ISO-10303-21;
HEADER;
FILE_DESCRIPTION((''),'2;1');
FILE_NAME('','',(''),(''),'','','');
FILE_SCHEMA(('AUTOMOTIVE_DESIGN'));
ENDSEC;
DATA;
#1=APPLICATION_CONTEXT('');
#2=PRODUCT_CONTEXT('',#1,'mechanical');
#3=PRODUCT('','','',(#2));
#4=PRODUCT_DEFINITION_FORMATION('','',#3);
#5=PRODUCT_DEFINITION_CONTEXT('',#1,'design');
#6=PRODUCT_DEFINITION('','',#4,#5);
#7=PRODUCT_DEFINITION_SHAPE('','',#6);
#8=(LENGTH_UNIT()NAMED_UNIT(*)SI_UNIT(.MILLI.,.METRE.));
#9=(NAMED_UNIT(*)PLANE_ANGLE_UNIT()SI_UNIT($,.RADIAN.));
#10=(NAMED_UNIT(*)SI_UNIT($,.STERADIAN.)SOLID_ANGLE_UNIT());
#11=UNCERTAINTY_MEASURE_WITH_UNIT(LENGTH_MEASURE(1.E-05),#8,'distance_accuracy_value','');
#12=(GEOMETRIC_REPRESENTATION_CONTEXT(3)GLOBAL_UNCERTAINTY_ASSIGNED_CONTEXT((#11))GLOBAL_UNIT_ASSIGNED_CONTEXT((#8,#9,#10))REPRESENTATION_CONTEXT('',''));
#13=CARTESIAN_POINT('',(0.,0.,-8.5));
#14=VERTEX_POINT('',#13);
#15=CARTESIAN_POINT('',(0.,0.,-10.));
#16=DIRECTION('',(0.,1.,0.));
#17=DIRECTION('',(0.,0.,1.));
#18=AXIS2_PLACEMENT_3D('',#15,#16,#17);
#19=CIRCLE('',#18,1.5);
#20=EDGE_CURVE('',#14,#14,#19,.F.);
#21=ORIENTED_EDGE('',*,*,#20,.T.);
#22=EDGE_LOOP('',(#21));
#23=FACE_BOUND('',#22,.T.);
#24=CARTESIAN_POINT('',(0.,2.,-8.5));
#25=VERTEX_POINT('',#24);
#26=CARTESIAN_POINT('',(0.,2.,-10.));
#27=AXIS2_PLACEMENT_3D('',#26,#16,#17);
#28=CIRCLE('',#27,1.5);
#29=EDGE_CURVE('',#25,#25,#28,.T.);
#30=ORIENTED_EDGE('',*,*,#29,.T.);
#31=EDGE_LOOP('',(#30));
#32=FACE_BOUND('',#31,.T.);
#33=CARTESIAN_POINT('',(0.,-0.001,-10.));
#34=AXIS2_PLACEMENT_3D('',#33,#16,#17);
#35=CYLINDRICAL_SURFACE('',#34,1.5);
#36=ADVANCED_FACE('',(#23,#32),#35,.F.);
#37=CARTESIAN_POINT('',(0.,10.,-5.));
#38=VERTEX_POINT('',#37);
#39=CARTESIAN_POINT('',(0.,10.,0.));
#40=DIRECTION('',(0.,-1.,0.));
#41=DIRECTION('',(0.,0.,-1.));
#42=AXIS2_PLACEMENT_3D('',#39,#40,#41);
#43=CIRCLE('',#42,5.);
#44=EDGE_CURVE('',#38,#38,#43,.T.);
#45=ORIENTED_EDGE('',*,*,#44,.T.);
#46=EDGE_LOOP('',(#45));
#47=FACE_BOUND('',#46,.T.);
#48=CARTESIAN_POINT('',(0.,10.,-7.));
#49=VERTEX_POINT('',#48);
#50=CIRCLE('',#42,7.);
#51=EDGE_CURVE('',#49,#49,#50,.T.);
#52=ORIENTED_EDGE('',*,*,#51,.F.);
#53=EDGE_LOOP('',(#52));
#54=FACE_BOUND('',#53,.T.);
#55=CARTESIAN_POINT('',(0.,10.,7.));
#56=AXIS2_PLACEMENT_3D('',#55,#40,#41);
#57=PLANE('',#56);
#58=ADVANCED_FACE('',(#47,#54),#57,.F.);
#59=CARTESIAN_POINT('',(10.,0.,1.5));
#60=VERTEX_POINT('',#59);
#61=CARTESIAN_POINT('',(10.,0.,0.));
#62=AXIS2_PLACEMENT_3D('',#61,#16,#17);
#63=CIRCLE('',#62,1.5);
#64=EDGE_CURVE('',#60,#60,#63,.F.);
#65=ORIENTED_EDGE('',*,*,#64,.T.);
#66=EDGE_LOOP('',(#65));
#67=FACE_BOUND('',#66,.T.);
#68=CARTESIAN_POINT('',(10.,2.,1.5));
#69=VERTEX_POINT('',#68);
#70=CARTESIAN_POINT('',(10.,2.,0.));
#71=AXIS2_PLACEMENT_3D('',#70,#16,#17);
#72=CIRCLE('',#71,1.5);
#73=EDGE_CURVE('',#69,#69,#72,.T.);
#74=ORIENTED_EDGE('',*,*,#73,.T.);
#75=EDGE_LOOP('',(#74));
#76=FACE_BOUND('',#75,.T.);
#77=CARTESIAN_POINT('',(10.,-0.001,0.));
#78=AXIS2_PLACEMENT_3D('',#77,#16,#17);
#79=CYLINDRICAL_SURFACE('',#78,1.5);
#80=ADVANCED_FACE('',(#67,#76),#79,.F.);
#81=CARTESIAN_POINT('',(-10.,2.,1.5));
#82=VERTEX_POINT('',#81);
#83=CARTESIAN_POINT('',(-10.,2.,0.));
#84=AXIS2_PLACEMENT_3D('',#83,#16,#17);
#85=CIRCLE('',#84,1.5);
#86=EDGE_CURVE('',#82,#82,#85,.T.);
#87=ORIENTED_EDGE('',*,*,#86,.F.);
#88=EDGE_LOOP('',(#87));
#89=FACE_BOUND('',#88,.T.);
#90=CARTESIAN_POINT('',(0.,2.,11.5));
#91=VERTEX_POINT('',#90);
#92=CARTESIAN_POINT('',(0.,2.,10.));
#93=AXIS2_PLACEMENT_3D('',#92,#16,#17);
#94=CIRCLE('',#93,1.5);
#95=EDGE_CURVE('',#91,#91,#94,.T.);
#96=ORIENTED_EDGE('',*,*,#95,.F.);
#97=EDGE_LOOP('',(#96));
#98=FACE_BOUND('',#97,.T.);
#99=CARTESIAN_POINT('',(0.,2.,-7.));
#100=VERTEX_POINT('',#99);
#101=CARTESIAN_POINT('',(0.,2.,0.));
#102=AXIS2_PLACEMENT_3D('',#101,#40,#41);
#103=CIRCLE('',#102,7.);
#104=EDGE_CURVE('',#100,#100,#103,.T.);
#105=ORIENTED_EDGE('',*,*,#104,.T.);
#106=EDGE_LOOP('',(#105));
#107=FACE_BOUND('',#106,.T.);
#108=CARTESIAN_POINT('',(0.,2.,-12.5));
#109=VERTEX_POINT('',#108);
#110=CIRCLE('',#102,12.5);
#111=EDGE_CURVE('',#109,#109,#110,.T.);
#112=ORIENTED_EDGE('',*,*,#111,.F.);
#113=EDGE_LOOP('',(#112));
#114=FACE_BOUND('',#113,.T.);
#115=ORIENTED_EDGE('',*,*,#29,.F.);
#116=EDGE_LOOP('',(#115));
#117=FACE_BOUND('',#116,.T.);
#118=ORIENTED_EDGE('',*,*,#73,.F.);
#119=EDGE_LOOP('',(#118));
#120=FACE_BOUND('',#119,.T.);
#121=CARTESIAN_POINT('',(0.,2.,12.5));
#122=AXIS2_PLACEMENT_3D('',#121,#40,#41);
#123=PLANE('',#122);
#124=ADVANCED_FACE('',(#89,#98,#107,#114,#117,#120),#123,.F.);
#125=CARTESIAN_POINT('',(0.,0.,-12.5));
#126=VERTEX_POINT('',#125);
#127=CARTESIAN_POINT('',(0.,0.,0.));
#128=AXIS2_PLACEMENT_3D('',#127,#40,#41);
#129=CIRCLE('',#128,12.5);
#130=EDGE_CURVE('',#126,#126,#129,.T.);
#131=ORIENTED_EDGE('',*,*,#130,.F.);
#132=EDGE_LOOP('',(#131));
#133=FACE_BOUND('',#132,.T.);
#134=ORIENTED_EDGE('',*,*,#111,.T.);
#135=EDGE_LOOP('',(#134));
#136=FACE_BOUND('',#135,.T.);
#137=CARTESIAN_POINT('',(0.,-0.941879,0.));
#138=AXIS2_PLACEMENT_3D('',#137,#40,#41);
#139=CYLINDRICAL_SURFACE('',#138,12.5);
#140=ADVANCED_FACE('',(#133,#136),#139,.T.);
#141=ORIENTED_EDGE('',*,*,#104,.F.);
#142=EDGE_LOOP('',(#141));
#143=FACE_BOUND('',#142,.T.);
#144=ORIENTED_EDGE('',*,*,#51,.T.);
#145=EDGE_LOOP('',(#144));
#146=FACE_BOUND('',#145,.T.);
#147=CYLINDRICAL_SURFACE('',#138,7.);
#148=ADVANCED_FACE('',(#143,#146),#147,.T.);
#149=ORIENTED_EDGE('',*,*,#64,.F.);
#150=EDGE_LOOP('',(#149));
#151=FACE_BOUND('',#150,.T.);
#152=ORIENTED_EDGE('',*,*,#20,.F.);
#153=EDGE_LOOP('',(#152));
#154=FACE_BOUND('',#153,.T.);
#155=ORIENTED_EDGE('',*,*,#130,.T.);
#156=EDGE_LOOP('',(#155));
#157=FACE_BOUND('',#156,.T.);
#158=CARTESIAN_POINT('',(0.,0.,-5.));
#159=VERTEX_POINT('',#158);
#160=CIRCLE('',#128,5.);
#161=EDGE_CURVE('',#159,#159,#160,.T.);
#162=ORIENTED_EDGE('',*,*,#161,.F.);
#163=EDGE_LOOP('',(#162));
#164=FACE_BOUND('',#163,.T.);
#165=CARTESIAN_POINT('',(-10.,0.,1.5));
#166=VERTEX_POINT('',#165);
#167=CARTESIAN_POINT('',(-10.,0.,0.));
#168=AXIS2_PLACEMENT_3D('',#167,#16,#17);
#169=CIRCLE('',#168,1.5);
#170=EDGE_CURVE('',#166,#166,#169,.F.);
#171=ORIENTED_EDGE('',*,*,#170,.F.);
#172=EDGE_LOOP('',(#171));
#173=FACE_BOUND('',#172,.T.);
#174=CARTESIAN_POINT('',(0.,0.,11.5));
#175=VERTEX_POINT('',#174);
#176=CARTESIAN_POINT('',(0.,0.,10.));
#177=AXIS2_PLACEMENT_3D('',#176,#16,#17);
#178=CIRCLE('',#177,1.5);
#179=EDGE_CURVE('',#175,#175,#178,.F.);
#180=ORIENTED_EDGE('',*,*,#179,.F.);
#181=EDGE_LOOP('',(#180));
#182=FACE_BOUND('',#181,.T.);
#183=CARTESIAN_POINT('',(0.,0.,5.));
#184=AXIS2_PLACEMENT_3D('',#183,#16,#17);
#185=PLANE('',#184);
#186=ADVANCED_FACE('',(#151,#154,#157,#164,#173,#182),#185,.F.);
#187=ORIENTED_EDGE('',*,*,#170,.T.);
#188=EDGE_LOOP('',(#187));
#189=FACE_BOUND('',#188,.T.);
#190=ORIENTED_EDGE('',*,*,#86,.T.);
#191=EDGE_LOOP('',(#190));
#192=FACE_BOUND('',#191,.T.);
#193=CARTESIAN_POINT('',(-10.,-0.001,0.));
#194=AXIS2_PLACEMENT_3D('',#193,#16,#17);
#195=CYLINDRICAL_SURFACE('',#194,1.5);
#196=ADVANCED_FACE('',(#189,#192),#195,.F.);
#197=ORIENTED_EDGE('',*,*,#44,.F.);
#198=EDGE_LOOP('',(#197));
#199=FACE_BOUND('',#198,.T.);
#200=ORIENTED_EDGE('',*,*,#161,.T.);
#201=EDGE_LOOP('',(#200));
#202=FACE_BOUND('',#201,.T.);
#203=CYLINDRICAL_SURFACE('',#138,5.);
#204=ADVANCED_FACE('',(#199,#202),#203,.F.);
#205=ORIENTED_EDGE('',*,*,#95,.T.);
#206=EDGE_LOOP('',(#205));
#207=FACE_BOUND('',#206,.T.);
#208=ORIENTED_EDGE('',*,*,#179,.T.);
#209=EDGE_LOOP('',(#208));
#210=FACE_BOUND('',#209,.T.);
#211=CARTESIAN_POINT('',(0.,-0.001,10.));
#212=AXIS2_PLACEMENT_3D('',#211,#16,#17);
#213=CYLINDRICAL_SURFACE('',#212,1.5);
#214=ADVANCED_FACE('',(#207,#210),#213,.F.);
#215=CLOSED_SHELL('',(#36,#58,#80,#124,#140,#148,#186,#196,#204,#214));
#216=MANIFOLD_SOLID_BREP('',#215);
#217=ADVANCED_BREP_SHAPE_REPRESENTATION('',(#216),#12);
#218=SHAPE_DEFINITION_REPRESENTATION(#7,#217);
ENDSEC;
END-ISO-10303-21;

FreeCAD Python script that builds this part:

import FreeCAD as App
import Part
import Sketcher
Q = App.Units.Quantity


def add_polygon(sketch, points):
    """Adds a closed chain of lines whose ends are joined by coincident constraints."""
    first, n = sketch.GeometryCount, len(points)
    for a, b in zip(points, points[1:] + points[:1]):
        sketch.addGeometry(Part.LineSegment(App.Vector(*a, 0), App.Vector(*b, 0)), False)
    for i in range(n):
        sketch.addConstraint(Sketcher.Constraint("Coincident", first + i, 2, first + (i + 1) % n, 1))

doc = App.newDocument("Part")
body = doc.addObject("PartDesign::Body", "Body")

# Sketch on YZ plane
sketch1 = body.newObject("Sketcher::SketchObject", "Sketch")
sketch1.AttachmentSupport = (doc.getObject("YZ_Plane"), [""])
sketch1.MapMode = "FlatFace"
add_polygon(sketch1, [(0, 12.5), (0, 5), (10, 5), (10, 7), (2, 7), (2, 12.5)])  # lines 0-5
sketch1.addConstraint([
    Sketcher.Constraint("Vertical", 0),
    Sketcher.Constraint("Horizontal", 1),
    Sketcher.Constraint("Vertical", 2),
    Sketcher.Constraint("Horizontal", 3),
    Sketcher.Constraint("Vertical", 4),
    Sketcher.Constraint("Horizontal", 5),
    Sketcher.Constraint("PointOnObject", 0, 2, -2),
    Sketcher.Constraint("Equal", 5, 2),
    Sketcher.Constraint("DistanceX", 1, 1, 1, 2, Q("10 mm")),
    Sketcher.Constraint("DistanceX", 3, 2, 3, 1, Q("8 mm")),
    Sketcher.Constraint("DistanceY", 0, 2, 0, 1, Q("7.5 mm")),
    Sketcher.Constraint("DistanceY", -1, 1, 0, 2, Q("5 mm")),
])
revolution = body.newObject("PartDesign::Revolution", "Revolution")
revolution.Profile = sketch1
revolution.ReferenceAxis = (sketch1, ["H_Axis"])
revolution.Angle = 360

# Sketch on XZ plane
sketch2 = body.newObject("Sketcher::SketchObject", "Sketch001")
sketch2.AttachmentSupport = (doc.getObject("XZ_Plane"), [""])
sketch2.MapMode = "FlatFace"
sketch2.AttachmentOffset = App.Placement(App.Vector(0, 0, -2), App.Rotation())
sketch2.addGeometry(Part.Circle(App.Vector(0, -10, 0), App.Vector(0, 0, 1), 1.5), False)
sketch2.addConstraint([
    Sketcher.Constraint("PointOnObject", 0, 3, -2),
    Sketcher.Constraint("Diameter", 0, Q("3 mm")),
    Sketcher.Constraint("DistanceY", 0, 3, -1, 1, Q("10 mm")),
])
pocket1 = body.newObject("PartDesign::Pocket", "Pocket")
pocket1.Profile = sketch2
pocket1.Type = "UpToFirst"
pocket1.Reversed = True

# Sketch on XZ plane
sketch3 = body.newObject("Sketcher::SketchObject", "Sketch002")
sketch3.AttachmentSupport = (doc.getObject("XZ_Plane"), [""])
sketch3.MapMode = "FlatFace"
sketch3.AttachmentOffset = App.Placement(App.Vector(0, 0, -2), App.Rotation())
sketch3.addGeometry(Part.Circle(App.Vector(10, 0, 0), App.Vector(0, 0, 1), 1.5), False)
sketch3.addConstraint([
    Sketcher.Constraint("PointOnObject", 0, 3, -1),
    Sketcher.Constraint("Diameter", 0, Q("3 mm")),
    Sketcher.Constraint("DistanceX", -1, 1, 0, 3, Q("10 mm")),
])
pocket2 = body.newObject("PartDesign::Pocket", "Pocket001")
pocket2.Profile = sketch3
pocket2.Type = "UpToFirst"
pocket2.Reversed = True

# Sketch on XZ plane
sketch4 = body.newObject("Sketcher::SketchObject", "Sketch003")
sketch4.AttachmentSupport = (doc.getObject("XZ_Plane"), [""])
sketch4.MapMode = "FlatFace"
sketch4.AttachmentOffset = App.Placement(App.Vector(0, 0, -2), App.Rotation())
sketch4.addGeometry(Part.Circle(App.Vector(0, 10, 0), App.Vector(0, 0, 1), 1.5), False)
sketch4.addConstraint([
    Sketcher.Constraint("PointOnObject", 0, 3, -2),
    Sketcher.Constraint("Diameter", 0, Q("3 mm")),
    Sketcher.Constraint("DistanceY", -1, 1, 0, 3, Q("10 mm")),
])
pocket3 = body.newObject("PartDesign::Pocket", "Pocket002")
pocket3.Profile = sketch4
pocket3.Type = "UpToFirst"
pocket3.Reversed = True

# Sketch on XZ plane
sketch5 = body.newObject("Sketcher::SketchObject", "Sketch004")
sketch5.AttachmentSupport = (doc.getObject("XZ_Plane"), [""])
sketch5.MapMode = "FlatFace"
sketch5.AttachmentOffset = App.Placement(App.Vector(0, 0, -2), App.Rotation())
sketch5.addGeometry(Part.Circle(App.Vector(-10, 0, 0), App.Vector(0, 0, 1), 1.5), False)
sketch5.addConstraint([
    Sketcher.Constraint("PointOnObject", 0, 3, -1),
    Sketcher.Constraint("Diameter", 0, Q("3 mm")),
    Sketcher.Constraint("DistanceX", 0, 3, -1, 1, Q("10 mm")),
])
pocket4 = body.newObject("PartDesign::Pocket", "Pocket003")
pocket4.Profile = sketch5
pocket4.Type = "UpToFirst"
pocket4.Reversed = True

doc.recompute()
